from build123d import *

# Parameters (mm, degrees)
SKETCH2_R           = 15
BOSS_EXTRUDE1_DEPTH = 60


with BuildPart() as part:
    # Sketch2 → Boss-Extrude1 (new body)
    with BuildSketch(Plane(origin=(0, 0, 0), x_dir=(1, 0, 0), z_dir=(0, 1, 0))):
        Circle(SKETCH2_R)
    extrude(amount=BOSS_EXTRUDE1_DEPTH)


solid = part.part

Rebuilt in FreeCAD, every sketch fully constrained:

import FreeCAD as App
import Part
import Sketcher
Q = App.Units.Quantity

doc = App.newDocument("Part")
params = doc.addObject("Spreadsheet::Sheet", "Params")
for row, (alias, value) in enumerate([
    ("sketch1_diameter", "30 mm"),
    ("pad1_length", "60 mm"),
], start=1):
    params.set(f"A{row}", alias)
    params.set(f"B{row}", "=" + value)
    params.setAlias(f"B{row}", alias)

body = doc.addObject("PartDesign::Body", "Body")

# Sketch on XZ plane
sketch1 = doc.addObject("Sketcher::SketchObject", "Sketch")
body.addObject(sketch1)
sketch1.AttachmentSupport = (doc.XZ_Plane, [""])
sketch1.MapMode = "FlatFace"
sketch1.addGeometry(Part.Circle(App.Vector(0, 0, 0), App.Vector(0, 0, 1), 15), False)
sketch1.addConstraint(Sketcher.Constraint("Coincident", 0, 3, -1, 1))
sketch1.addConstraint(Sketcher.Constraint("Diameter", 0, Q("30 mm")))
sketch1.setExpression("Constraints[1]", "Params.sketch1_diameter")
pad1 = doc.addObject("PartDesign::Pad", "Pad")
body.addObject(pad1)
pad1.Profile = sketch1
pad1.setExpression("Length", "Params.pad1_length")
pad1.Reversed = True

doc.recompute()
